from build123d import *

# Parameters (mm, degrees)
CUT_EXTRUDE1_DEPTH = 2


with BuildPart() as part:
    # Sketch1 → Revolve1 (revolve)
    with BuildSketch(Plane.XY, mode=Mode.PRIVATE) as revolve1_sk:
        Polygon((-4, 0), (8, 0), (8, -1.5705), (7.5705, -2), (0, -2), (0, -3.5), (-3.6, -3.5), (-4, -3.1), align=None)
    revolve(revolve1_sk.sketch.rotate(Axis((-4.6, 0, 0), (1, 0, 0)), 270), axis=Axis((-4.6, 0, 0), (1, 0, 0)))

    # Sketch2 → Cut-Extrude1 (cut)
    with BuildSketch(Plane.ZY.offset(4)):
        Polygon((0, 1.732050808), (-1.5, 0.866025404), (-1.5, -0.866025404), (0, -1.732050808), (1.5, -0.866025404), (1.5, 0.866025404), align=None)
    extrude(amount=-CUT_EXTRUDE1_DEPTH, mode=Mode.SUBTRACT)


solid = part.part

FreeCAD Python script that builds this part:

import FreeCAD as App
import Part
import Sketcher
from FreeCAD import Vector
Q = App.Units.Quantity

doc = App.newDocument("Part")
body = doc.addObject("PartDesign::Body", "Body")

# Sketch on XY plane
sketch1 = body.newObject("Sketcher::SketchObject", "Sketch")
sketch1.AttachmentSupport = (doc.getObject("XY_Plane"), [""])
sketch1.MapMode = "FlatFace"
sketch1.addGeometry([
    Part.LineSegment(Vector(8, 0, 0), Vector(-4, 0, 0)),  # 0
    Part.LineSegment(Vector(-4, 0, 0), Vector(-4, -3.1, 0)),  # 1
    Part.LineSegment(Vector(-4, -3.1, 0), Vector(-3.6, -3.5, 0)),  # 2
    Part.LineSegment(Vector(-3.6, -3.5, 0), Vector(0, -3.5, 0)),  # 3
    Part.LineSegment(Vector(0, -3.5, 0), Vector(0, -2, 0)),  # 4
    Part.LineSegment(Vector(0, -2, 0), Vector(7.6, -2, 0)),  # 5
    Part.LineSegment(Vector(7.6, -2, 0), Vector(8, -1.6, 0)),  # 6
    Part.LineSegment(Vector(8, -1.6, 0), Vector(8, 0, 0)),  # 7
], False)
sketch1.addConstraint([
    Sketcher.Constraint("Coincident", 0, 2, 1, 1),
    Sketcher.Constraint("Coincident", 1, 2, 2, 1),
    Sketcher.Constraint("Coincident", 2, 2, 3, 1),
    Sketcher.Constraint("Coincident", 3, 2, 4, 1),
    Sketcher.Constraint("Coincident", 4, 2, 5, 1),
    Sketcher.Constraint("Coincident", 5, 2, 6, 1),
    Sketcher.Constraint("Coincident", 6, 2, 7, 1),
    Sketcher.Constraint("Coincident", 7, 2, 0, 1),
    Sketcher.Constraint("Horizontal", 0),
    Sketcher.Constraint("Vertical", 1),
    Sketcher.Constraint("Horizontal", 3),
    Sketcher.Constraint("Vertical", 4),
    Sketcher.Constraint("Horizontal", 5),
    Sketcher.Constraint("Vertical", 7),
    Sketcher.Constraint("PointOnObject", 0, 2, -1),
    Sketcher.Constraint("PointOnObject", 3, 2, -2),
    Sketcher.Constraint("Perpendicular", 2, 6),
    Sketcher.Constraint("DistanceX", 0, 2, 0, 1, Q("12 mm")),
    Sketcher.Constraint("Angle", 2, Q("-45 deg")),
    Sketcher.Constraint("DistanceX", 3, 1, 3, 2, Q("3.6 mm")),
    Sketcher.Constraint("DistanceY", 1, 2, 1, 1, Q("3.1 mm")),
    Sketcher.Constraint("DistanceY", 4, 1, 4, 2, Q("1.5 mm")),
    Sketcher.Constraint("DistanceX", 0, 2, -1, 1, Q("4 mm")),
    Sketcher.Constraint("DistanceX", 5, 1, 5, 2, Q("7.5705 mm")),
])
revolution = body.newObject("PartDesign::Revolution", "Revolution")
revolution.Profile = sketch1
revolution.ReferenceAxis = (sketch1, ["H_Axis"])
revolution.Angle = 360

# Sketch on YZ plane
sketch2 = body.newObject("Sketcher::SketchObject", "Sketch001")
sketch2.AttachmentSupport = (doc.getObject("YZ_Plane"), [""])
sketch2.MapMode = "FlatFace"
sketch2.AttachmentOffset = App.Placement(Vector(0, 0, -4), App.Rotation())
sketch2.addGeometry([
    Part.LineSegment(Vector(1.7, 0, 0), Vector(0.9, -1.5, 0)),  # 0
    Part.LineSegment(Vector(0.9, -1.5, 0), Vector(-0.9, -1.5, 0)),  # 1
    Part.LineSegment(Vector(-0.9, -1.5, 0), Vector(-1.7, 0, 0)),  # 2
    Part.LineSegment(Vector(-1.7, 0, 0), Vector(-0.9, 1.5, 0)),  # 3
    Part.LineSegment(Vector(-0.9, 1.5, 0), Vector(0.9, 1.5, 0)),  # 4
    Part.LineSegment(Vector(0.9, 1.5, 0), Vector(1.7, 0, 0)),  # 5
], False)
sketch2.addConstraint([
    Sketcher.Constraint("Coincident", 0, 2, 1, 1),
    Sketcher.Constraint("Coincident", 1, 2, 2, 1),
    Sketcher.Constraint("Coincident", 2, 2, 3, 1),
    Sketcher.Constraint("Coincident", 3, 2, 4, 1),
    Sketcher.Constraint("Coincident", 4, 2, 5, 1),
    Sketcher.Constraint("Coincident", 5, 2, 0, 1),
    Sketcher.Constraint("Horizontal", 1),
    Sketcher.Constraint("Horizontal", 4),
    Sketcher.Constraint("Symmetric", 0, 2, 3, 2, -1, 1),
    Sketcher.Constraint("Symmetric", 2, 2, 5, 2, -1, 1),
    Sketcher.Constraint("PointOnObject", 2, 2, -1),
    Sketcher.Constraint("Parallel", 2, 5),
    Sketcher.Constraint("Vertical", 1, 2, 3, 2),
    Sketcher.Constraint("Angle", 0, Q("-120 deg")),
    Sketcher.Constraint("DistanceY", 1, 2, 3, 2, Q("3 mm")),
    Sketcher.Constraint("DistanceX", 1, 2, 1, 1, Q("1.732051 mm")),
])
pocket1 = body.newObject("PartDesign::Pocket", "Pocket")
pocket1.Profile = sketch2
pocket1.Length = 2
pocket1.Reversed = True

doc.recompute()
